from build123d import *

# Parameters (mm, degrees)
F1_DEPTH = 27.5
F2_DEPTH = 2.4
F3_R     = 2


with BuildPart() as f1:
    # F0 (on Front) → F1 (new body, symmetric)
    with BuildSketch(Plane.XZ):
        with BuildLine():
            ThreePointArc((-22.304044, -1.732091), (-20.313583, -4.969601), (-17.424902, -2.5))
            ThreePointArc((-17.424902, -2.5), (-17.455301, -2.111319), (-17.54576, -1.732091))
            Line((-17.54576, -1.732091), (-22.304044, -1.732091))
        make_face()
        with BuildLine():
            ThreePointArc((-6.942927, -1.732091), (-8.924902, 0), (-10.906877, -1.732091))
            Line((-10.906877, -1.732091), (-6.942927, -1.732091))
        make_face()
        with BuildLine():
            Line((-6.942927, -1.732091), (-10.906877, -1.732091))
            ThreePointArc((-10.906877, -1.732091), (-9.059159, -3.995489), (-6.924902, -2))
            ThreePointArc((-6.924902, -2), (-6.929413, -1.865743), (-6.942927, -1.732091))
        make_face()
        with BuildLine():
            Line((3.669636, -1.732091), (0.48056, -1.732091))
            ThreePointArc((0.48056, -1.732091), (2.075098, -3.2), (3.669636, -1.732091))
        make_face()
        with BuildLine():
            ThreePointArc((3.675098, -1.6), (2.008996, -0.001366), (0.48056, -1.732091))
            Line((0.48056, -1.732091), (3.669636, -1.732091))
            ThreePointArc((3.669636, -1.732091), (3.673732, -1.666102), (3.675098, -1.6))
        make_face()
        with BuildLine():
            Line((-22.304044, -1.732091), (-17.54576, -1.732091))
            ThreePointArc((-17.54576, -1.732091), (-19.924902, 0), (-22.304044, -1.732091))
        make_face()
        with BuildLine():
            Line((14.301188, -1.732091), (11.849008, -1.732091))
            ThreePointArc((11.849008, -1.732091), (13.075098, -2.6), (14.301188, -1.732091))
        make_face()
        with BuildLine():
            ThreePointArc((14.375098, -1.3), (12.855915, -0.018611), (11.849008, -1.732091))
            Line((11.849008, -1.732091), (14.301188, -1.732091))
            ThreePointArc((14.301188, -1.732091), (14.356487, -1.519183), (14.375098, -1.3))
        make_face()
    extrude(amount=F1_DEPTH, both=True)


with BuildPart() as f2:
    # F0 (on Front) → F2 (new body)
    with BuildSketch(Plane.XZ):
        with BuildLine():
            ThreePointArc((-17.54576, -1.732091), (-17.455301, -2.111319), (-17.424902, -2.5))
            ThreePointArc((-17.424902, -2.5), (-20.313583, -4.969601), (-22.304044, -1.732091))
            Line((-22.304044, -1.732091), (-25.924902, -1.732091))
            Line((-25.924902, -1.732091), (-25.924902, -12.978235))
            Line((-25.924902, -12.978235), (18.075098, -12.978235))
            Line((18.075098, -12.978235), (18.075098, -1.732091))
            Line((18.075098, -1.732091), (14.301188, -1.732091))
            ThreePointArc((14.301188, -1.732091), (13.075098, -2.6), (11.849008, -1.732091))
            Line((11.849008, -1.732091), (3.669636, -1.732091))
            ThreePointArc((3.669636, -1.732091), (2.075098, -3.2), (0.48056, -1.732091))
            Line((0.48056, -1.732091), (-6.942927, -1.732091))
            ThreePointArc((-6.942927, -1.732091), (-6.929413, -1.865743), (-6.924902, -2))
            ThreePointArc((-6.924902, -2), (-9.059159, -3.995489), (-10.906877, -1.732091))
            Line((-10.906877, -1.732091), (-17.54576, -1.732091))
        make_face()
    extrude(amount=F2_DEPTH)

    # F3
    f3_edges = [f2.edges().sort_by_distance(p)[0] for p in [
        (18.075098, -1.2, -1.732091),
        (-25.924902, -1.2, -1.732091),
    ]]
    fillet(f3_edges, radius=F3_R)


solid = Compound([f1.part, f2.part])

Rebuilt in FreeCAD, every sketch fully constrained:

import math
import FreeCAD as App
import Part
import Sketcher

V = App.Vector


def edges_at(feature, points):
    """Names of the edges that pass closest to the given points."""
    edges = feature.Shape.Edges
    near = lambda p: min(range(len(edges)), key=lambda i: edges[i].distToShape(Part.Vertex(*p))[0])
    return sorted({f"Edge{near(p) + 1}" for p in points})

doc = App.newDocument("Part")
params = doc.addObject("Spreadsheet::Sheet", "Params")
for row, (alias, value) in enumerate([
    ("sketch1_radius", "2 mm"),
    ("sketch1_radius2", "2.5 mm"),
    ("sketch1_radius3", "1.6 mm"),
    ("sketch1_radius4", "1.3 mm"),
    ("pad1_length", "55 mm"),
    ("sketch2_radius", "2 mm"),
    ("sketch2_radius2", "2.5 mm"),
    ("sketch2_radius3", "1.3 mm"),
    ("sketch2_radius4", "1.6 mm"),
    ("sketch2_width", "44 mm"),
    ("pad2_length", "2.4 mm"),
    ("fillet_radius", "2 mm"),
], start=1):
    params.set(f"A{row}", alias)
    params.set(f"B{row}", "=" + value)
    params.setAlias(f"B{row}", alias)

body = doc.addObject("PartDesign::Body", "Body")
body.AllowCompound = True

# Sketch on XZ plane
sketch1 = body.newObject("Sketcher::SketchObject", "Sketch")
sketch1.AttachmentSupport = (doc.getObject("XZ_Plane"), [""])
sketch1.MapMode = "FlatFace"
sketch1.addGeometry([
    Part.ArcOfCircle(Part.Circle(V(-19.924902, -2.5, 0), V(0, 0, 1), 2.5), math.radians(162.111616), math.radians(360.000006)),  # 0
    Part.ArcOfCircle(Part.Circle(V(-19.924877, -2.499995, 0), V(0, 0, 1), 2.499975), math.radians(-0.000105), math.radians(17.888457)),  # 1
    Part.ArcOfCircle(Part.Circle(V(-19.924902, -2.5, 0), V(0, 0, 1), 2.5), math.radians(17.888383), math.radians(162.111617)),  # 2
    Part.ArcOfCircle(Part.Circle(V(-8.924902, -2, 0), V(0, 0, 1), 2), math.radians(7.698169), math.radians(172.301831)),  # 3
    Part.ArcOfCircle(Part.Circle(V(-8.924902, -2, 0), V(0, 0, 1), 2), math.radians(172.301824), math.radians(360.000008)),  # 4
    Part.ArcOfCircle(Part.Circle(V(-8.924767, -1.999991, 0), V(0, 0, 1), 1.999865), math.radians(-0.000268), math.radians(7.698422)),  # 5
    Part.ArcOfCircle(Part.Circle(V(2.075098, -1.6, 0), V(0, 0, 1), 1.6), math.radians(-175.264456), math.radians(-4.735544)),  # 6
    Part.ArcOfCircle(Part.Circle(V(2.075247, -1.600004, 0), V(0, 0, 1), 1.599851), math.radians(-4.735844), math.radians(0.000148)),  # 7
    Part.ArcOfCircle(Part.Circle(V(2.075098, -1.6, 0), V(0, 0, 1), 1.6), math.radians(-0.000005), math.radians(184.735555)),  # 8
    Part.ArcOfCircle(Part.Circle(V(13.075098, -1.3, 0), V(0, 0, 1), 1.3), math.radians(-160.586857), math.radians(-19.413143)),  # 9
    Part.ArcOfCircle(Part.Circle(V(13.07508, -1.299996, 0), V(0, 0, 1), 1.300018), math.radians(-19.413053), math.radians(-0.000174)),  # 10
    Part.ArcOfCircle(Part.Circle(V(13.075098, -1.3, 0), V(0, 0, 1), 1.3), math.radians(0.000009), math.radians(199.413148)),  # 11
], False)
sketch1.addConstraint([
    Sketcher.Constraint("Coincident", 0, 2, 1, 1),
    Sketcher.Constraint("Coincident", 1, 2, 2, 1),
    Sketcher.Constraint("Coincident", 2, 2, 0, 1),
    Sketcher.Constraint("Coincident", 3, 2, 4, 1),
    Sketcher.Constraint("Coincident", 4, 2, 5, 1),
    Sketcher.Constraint("Coincident", 5, 2, 3, 1),
    Sketcher.Constraint("Coincident", 6, 2, 7, 1),
    Sketcher.Constraint("Coincident", 7, 2, 8, 1),
    Sketcher.Constraint("Coincident", 8, 2, 6, 1),
    Sketcher.Constraint("Coincident", 9, 2, 10, 1),
    Sketcher.Constraint("Coincident", 10, 2, 11, 1),
    Sketcher.Constraint("Coincident", 11, 2, 9, 1),
    Sketcher.Constraint("Coincident", 2, 3, 0, 3),
    Sketcher.Constraint("Coincident", 4, 3, 3, 3),
    Sketcher.Constraint("Coincident", 8, 3, 6, 3),
    Sketcher.Constraint("Coincident", 11, 3, 9, 3),
    Sketcher.Constraint("Radius", 3, 2.0),
    Sketcher.Constraint("Radius", 0, 2.5),
    Sketcher.Constraint("Radius", 6, 1.6),
    Sketcher.Constraint("Radius", 9, 1.3),
    Sketcher.Constraint("DistanceY", 3, 3, -1, 1, 2.0),
    Sketcher.Constraint("DistanceY", 4, 2, -1, 1, 2.0),
    Sketcher.Constraint("DistanceX", 2, 3, 3, 3, 11.0),
    Sketcher.Constraint("DistanceX", 3, 3, 6, 3, 11.0),
    Sketcher.Constraint("DistanceX", 8, 3, 9, 3, 11.0),
    Sketcher.Constraint("DistanceY", 0, 3, -1, 1, 2.5),
    Sketcher.Constraint("DistanceY", 6, 3, -1, 1, 1.6),
    Sketcher.Constraint("DistanceY", 9, 3, -1, 1, 1.3),
    Sketcher.Constraint("DistanceY", 0, 2, -1, 1, 2.5),
    Sketcher.Constraint("DistanceY", 7, 2, -1, 1, 1.6),
    Sketcher.Constraint("DistanceY", 10, 2, -1, 1, 1.3),
    Sketcher.Constraint("Radius", 7, 1.599851),
    Sketcher.Constraint("Radius", 10, 1.300018),
    Sketcher.Constraint("Radius", 1, 2.499975),
    Sketcher.Constraint("Radius", 5, 1.999865),
    Sketcher.Constraint("DistanceX", 2, 3, -1, 1, 19.924902),
    Sketcher.Constraint("DistanceY", 5, 3, 3, 2, 0.2679),
    Sketcher.Constraint("DistanceY", 5, 3, 5, 2, 0.2679),
    Sketcher.Constraint("DistanceX", 1, 2, -1, 1, 17.54576),
    Sketcher.Constraint("DistanceY", 2, 2, -1, 1, 1.732091),
    Sketcher.Constraint("DistanceY", 6, 2, -1, 1, 1.732091),
    Sketcher.Constraint("DistanceX", -1, 1, 8, 2, 0.48056),
    Sketcher.Constraint("DistanceY", 9, 2, -1, 1, 1.732091),
    Sketcher.Constraint("DistanceX", -1, 1, 11, 2, 11.849008),
])
sketch1.setExpression("Constraints[16]", "Params.sketch1_radius")
sketch1.setExpression("Constraints[17]", "Params.sketch1_radius2")
sketch1.setExpression("Constraints[18]", "Params.sketch1_radius3")
sketch1.setExpression("Constraints[19]", "Params.sketch1_radius4")
pad1 = body.newObject("PartDesign::Pad", "Pad")
pad1.Profile = sketch1
pad1.setExpression("Length", "Params.pad1_length")
pad1.Midplane = True
body2 = doc.addObject("PartDesign::Body", "Body001")

# Sketch on XZ plane
sketch2 = body2.newObject("Sketcher::SketchObject", "Sketch001")
sketch2.AttachmentSupport = (doc.getObject("XZ_Plane001"), [""])
sketch2.MapMode = "FlatFace"
sketch2.addGeometry([
    Part.ArcOfCircle(Part.Circle(V(-19.924877, -2.499995, 0), V(0, 0, 1), 2.499975), math.radians(-0.000105), math.radians(17.888457)),  # 0
    Part.ArcOfCircle(Part.Circle(V(-19.924902, -2.5, 0), V(0, 0, 1), 2.5), math.radians(162.111616), math.radians(360.000006)),  # 1
    Part.LineSegment(V(-22.304044, -1.732091, 0), V(-25.924902, -1.732091, 0)),  # 2
    Part.LineSegment(V(-25.924902, -1.732091, 0), V(-25.924902, -12.978235, 0)),  # 3
    Part.LineSegment(V(-25.924902, -12.978235, 0), V(18.075098, -12.978235, 0)),  # 4
    Part.LineSegment(V(18.075098, -12.978235, 0), V(18.075098, -1.732091, 0)),  # 5
    Part.LineSegment(V(18.075098, -1.732091, 0), V(14.301188, -1.732091, 0)),  # 6
    Part.ArcOfCircle(Part.Circle(V(13.075098, -1.3, 0), V(0, 0, 1), 1.3), math.radians(-160.586857), math.radians(-19.413143)),  # 7
    Part.LineSegment(V(11.849008, -1.732091, 0), V(3.669636, -1.732091, 0)),  # 8
    Part.ArcOfCircle(Part.Circle(V(2.075098, -1.6, 0), V(0, 0, 1), 1.6), math.radians(-175.264456), math.radians(-4.735544)),  # 9
    Part.LineSegment(V(0.48056, -1.732091, 0), V(-6.942927, -1.732091, 0)),  # 10
    Part.ArcOfCircle(Part.Circle(V(-8.924767, -1.999991, 0), V(0, 0, 1), 1.999865), math.radians(-0.000268), math.radians(7.698422)),  # 11
    Part.ArcOfCircle(Part.Circle(V(-8.924902, -2, 0), V(0, 0, 1), 2), math.radians(172.301824), math.radians(360.000008)),  # 12
    Part.LineSegment(V(-10.906877, -1.732091, 0), V(-17.54576, -1.732091, 0)),  # 13
], False)
sketch2.addConstraint([
    Sketcher.Constraint("Tangent", 0, 1, 1, 2),
    Sketcher.Constraint("Coincident", 1, 1, 2, 1),
    Sketcher.Constraint("Coincident", 2, 2, 3, 1),
    Sketcher.Constraint("Coincident", 3, 2, 4, 1),
    Sketcher.Constraint("Coincident", 4, 2, 5, 1),
    Sketcher.Constraint("Coincident", 5, 2, 6, 1),
    Sketcher.Constraint("Coincident", 6, 2, 7, 2),
    Sketcher.Constraint("Coincident", 7, 1, 8, 1),
    Sketcher.Constraint("Coincident", 8, 2, 9, 2),
    Sketcher.Constraint("Coincident", 9, 1, 10, 1),
    Sketcher.Constraint("Coincident", 10, 2, 11, 2),
    Sketcher.Constraint("Coincident", 11, 1, 12, 2),
    Sketcher.Constraint("Coincident", 12, 1, 13, 1),
    Sketcher.Constraint("Coincident", 13, 2, 0, 2),
    Sketcher.Constraint("Horizontal", 2),
    Sketcher.Constraint("Vertical", 3),
    Sketcher.Constraint("Horizontal", 4),
    Sketcher.Constraint("Vertical", 5),
    Sketcher.Constraint("Horizontal", 6),
    Sketcher.Constraint("Horizontal", 8),
    Sketcher.Constraint("Horizontal", 10),
    Sketcher.Constraint("Horizontal", 13),
    Sketcher.Constraint("Horizontal", 1, 3, 0, 1),
    Sketcher.Constraint("Horizontal", 2, 2, 5, 2),
    Sketcher.Constraint("Horizontal", 6, 2, 7, 1),
    Sketcher.Constraint("Horizontal", 8, 2, 9, 1),
    Sketcher.Constraint("Horizontal", 12, 3, 11, 1),
    Sketcher.Constraint("Horizontal", 10, 2, 12, 1),
    Sketcher.Constraint("Radius", 12, 2.0),
    Sketcher.Constraint("Radius", 1, 2.5),
    Sketcher.Constraint("Radius", 7, 1.3),
    Sketcher.Constraint("Radius", 9, 1.6),
    Sketcher.Constraint("DistanceX", 4, 1, 4, 2, 44.0),
    Sketcher.Constraint("DistanceY", 12, 3, -1, 1, 2.0),
    Sketcher.Constraint("DistanceX", 1, 3, 7, 3, 33.0),
    Sketcher.Constraint("DistanceX", 9, 3, 7, 3, 11.0),
    Sketcher.Constraint("DistanceX", 12, 3, 9, 3, 11.0),
    Sketcher.Constraint("DistanceX", 2, 2, 1, 3, 6.0),
    Sketcher.Constraint("DistanceY", 1, 3, -1, 1, 2.5),
    Sketcher.Constraint("DistanceY", 7, 3, -1, 1, 1.3),
    Sketcher.Constraint("DistanceY", 9, 3, -1, 1, 1.6),
    Sketcher.Constraint("Radius", 0, 2.499975),
    Sketcher.Constraint("Radius", 11, 1.999865),
    Sketcher.Constraint("DistanceX", 6, 2, 6, 1, 3.77391),
    Sketcher.Constraint("DistanceX", -1, 1, 9, 3, 2.075098),
    Sketcher.Constraint("DistanceY", 11, 3, 1, 1, 0.2679),
    Sketcher.Constraint("DistanceY", 3, 2, 3, 1, 11.246144),
])
sketch2.setExpression("Constraints[28]", "Params.sketch2_radius")
sketch2.setExpression("Constraints[29]", "Params.sketch2_radius2")
sketch2.setExpression("Constraints[30]", "Params.sketch2_radius3")
sketch2.setExpression("Constraints[31]", "Params.sketch2_radius4")
sketch2.setExpression("Constraints[32]", "Params.sketch2_width")
pad2 = body2.newObject("PartDesign::Pad", "Pad001")
pad2.Profile = sketch2
pad2.setExpression("Length", "Params.pad2_length")
doc.recompute()

fillet = body2.newObject("PartDesign::Fillet", "Fillet")
fillet.Base = (pad2, edges_at(pad2, [(18.075, -1.2, -1.732), (-25.925, -1.2, -1.732)]))
fillet.setExpression("Radius", "Params.fillet_radius")

doc.recompute()
